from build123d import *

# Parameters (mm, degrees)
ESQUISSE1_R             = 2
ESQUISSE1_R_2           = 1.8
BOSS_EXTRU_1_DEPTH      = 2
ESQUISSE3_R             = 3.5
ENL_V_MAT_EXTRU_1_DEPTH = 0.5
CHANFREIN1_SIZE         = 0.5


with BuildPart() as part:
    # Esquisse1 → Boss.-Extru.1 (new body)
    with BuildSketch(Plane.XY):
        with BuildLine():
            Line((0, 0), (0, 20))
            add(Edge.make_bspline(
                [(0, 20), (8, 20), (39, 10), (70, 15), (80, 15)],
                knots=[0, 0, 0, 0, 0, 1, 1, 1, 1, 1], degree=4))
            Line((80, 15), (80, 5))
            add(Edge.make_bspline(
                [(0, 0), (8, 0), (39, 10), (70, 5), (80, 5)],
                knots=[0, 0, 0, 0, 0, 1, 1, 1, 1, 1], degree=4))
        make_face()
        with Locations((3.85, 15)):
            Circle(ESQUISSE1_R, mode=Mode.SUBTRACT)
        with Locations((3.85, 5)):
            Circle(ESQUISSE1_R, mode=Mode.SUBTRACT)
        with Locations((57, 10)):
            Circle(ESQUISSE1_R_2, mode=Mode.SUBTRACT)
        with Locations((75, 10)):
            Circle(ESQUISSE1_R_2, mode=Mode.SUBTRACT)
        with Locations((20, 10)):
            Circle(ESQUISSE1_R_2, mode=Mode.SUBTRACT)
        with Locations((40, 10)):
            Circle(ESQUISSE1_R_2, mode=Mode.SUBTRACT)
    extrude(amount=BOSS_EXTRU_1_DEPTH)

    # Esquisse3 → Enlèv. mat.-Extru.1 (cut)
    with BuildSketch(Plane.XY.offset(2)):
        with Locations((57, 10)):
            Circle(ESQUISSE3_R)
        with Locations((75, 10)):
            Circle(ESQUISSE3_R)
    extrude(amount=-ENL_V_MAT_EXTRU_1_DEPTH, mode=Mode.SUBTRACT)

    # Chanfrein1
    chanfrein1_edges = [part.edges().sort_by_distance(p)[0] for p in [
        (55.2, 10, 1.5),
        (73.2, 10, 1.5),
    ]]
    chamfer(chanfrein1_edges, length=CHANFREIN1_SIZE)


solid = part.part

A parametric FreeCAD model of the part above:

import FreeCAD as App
import Part
import Sketcher

V = App.Vector


def edges_at(feature, points):
    """Names of the edges that pass closest to the given points."""
    edges = feature.Shape.Edges
    near = lambda p: min(range(len(edges)), key=lambda i: edges[i].distToShape(Part.Vertex(*p))[0])
    return sorted({f"Edge{near(p) + 1}" for p in points})

doc = App.newDocument("Part")
body = doc.addObject("PartDesign::Body", "Body")

# Sketch on XY plane
sketch1 = body.newObject("Sketcher::SketchObject", "Sketch")
sketch1.AttachmentSupport = (doc.getObject("XY_Plane"), [""])
sketch1.MapMode = "FlatFace"
sketch1.addGeometry([
    Part.LineSegment(V(0, 20, 0), V(0, 0, 0)),  # 0
    Part.BSplineCurve([V(0, 0, 0), V(8, 0, 0), V(39, 10, 0), V(70, 5, 0), V(80, 5, 0)], [5, 5], [0, 1], False, 4, [1, 1, 1, 1, 1], False),  # 1
    Part.LineSegment(V(80, 5, 0), V(80, 15, 0)),  # 2
    Part.BSplineCurve([V(0, 20, 0), V(8, 20, 0), V(39, 10, 0), V(70, 15, 0), V(80, 15, 0)], [5, 5], [0, 1], False, 4, [1, 1, 1, 1, 1], False),  # 3
    Part.Circle(V(3.85, 5, 0), V(0, 0, 1), 2),  # 4
    Part.Circle(V(75, 10, 0), V(0, 0, 1), 1.8),  # 5
    Part.Circle(V(57, 10, 0), V(0, 0, 1), 1.8),  # 6
    Part.Circle(V(40, 10, 0), V(0, 0, 1), 1.8),  # 7
    Part.Circle(V(20, 10, 0), V(0, 0, 1), 1.8),  # 8
    Part.Circle(V(3.85, 15, 0), V(0, 0, 1), 2),  # 9
], False)
sketch1.addConstraint([
    Sketcher.Constraint("Block", 1),
    Sketcher.Constraint("Block", 3),
    Sketcher.Constraint("Coincident", 0, 2, 1, 1),
    Sketcher.Constraint("Coincident", 1, 2, 2, 1),
    Sketcher.Constraint("Coincident", 2, 2, 3, 2),
    Sketcher.Constraint("Coincident", 3, 1, 0, 1),
    Sketcher.Constraint("Equal", 5, 6),
    Sketcher.Constraint("Equal", 6, 7),
    Sketcher.Constraint("Equal", 7, 8),
    Sketcher.Constraint("Equal", 4, 9),
    Sketcher.Constraint("Horizontal", 5, 3, 6, 3),
    Sketcher.Constraint("Horizontal", 6, 3, 7, 3),
    Sketcher.Constraint("Horizontal", 7, 3, 8, 3),
    Sketcher.Constraint("Horizontal", 9, 3, 2, 2),
    Sketcher.Constraint("Vertical", 4, 3, 9, 3),
    Sketcher.Constraint("Diameter", 4, 4.0),
    Sketcher.Constraint("Diameter", 5, 3.6),
    Sketcher.Constraint("DistanceY", -1, 1, 4, 3, 5.0),
    Sketcher.Constraint("DistanceX", -1, 1, 5, 3, 75.0),
    Sketcher.Constraint("DistanceY", -1, 1, 5, 3, 10.0),
    Sketcher.Constraint("DistanceX", -1, 1, 6, 3, 57.0),
    Sketcher.Constraint("DistanceX", -1, 1, 7, 3, 40.0),
    Sketcher.Constraint("DistanceX", -1, 1, 8, 3, 20.0),
    Sketcher.Constraint("DistanceX", -1, 1, 4, 3, 3.85),
])
pad1 = body.newObject("PartDesign::Pad", "Pad")
pad1.Profile = sketch1
pad1.Length = 2

# Sketch on XY plane
sketch2 = body.newObject("Sketcher::SketchObject", "Sketch001")
sketch2.AttachmentSupport = (doc.getObject("XY_Plane"), [""])
sketch2.MapMode = "FlatFace"
sketch2.AttachmentOffset = App.Placement(V(0, 0, 2), App.Rotation())
sketch2.addGeometry([
    Part.Circle(V(57, 10, 0), V(0, 0, 1), 3.5),
    Part.Circle(V(75, 10, 0), V(0, 0, 1), 3.5),
], False)
sketch2.addConstraint([
    Sketcher.Constraint("Equal", 0, 1),
    Sketcher.Constraint("Horizontal", 0, 3, 1, 3),
    Sketcher.Constraint("Diameter", 0, 7.0),
    Sketcher.Constraint("DistanceX", -1, 1, 0, 3, 57.0),
    Sketcher.Constraint("DistanceY", -1, 1, 0, 3, 10.0),
    Sketcher.Constraint("DistanceX", -1, 1, 1, 3, 75.0),
])
pocket1 = body.newObject("PartDesign::Pocket", "Pocket")
pocket1.Profile = sketch2
pocket1.Length = 0.5
doc.recompute()

chamfer = body.newObject("PartDesign::Chamfer", "Chamfer")
chamfer.Base = (pocket1, edges_at(pocket1, [(55.2, 10, 1.5), (73.2, 10, 1.5)]))
chamfer.Size = 0.5

doc.recompute()
